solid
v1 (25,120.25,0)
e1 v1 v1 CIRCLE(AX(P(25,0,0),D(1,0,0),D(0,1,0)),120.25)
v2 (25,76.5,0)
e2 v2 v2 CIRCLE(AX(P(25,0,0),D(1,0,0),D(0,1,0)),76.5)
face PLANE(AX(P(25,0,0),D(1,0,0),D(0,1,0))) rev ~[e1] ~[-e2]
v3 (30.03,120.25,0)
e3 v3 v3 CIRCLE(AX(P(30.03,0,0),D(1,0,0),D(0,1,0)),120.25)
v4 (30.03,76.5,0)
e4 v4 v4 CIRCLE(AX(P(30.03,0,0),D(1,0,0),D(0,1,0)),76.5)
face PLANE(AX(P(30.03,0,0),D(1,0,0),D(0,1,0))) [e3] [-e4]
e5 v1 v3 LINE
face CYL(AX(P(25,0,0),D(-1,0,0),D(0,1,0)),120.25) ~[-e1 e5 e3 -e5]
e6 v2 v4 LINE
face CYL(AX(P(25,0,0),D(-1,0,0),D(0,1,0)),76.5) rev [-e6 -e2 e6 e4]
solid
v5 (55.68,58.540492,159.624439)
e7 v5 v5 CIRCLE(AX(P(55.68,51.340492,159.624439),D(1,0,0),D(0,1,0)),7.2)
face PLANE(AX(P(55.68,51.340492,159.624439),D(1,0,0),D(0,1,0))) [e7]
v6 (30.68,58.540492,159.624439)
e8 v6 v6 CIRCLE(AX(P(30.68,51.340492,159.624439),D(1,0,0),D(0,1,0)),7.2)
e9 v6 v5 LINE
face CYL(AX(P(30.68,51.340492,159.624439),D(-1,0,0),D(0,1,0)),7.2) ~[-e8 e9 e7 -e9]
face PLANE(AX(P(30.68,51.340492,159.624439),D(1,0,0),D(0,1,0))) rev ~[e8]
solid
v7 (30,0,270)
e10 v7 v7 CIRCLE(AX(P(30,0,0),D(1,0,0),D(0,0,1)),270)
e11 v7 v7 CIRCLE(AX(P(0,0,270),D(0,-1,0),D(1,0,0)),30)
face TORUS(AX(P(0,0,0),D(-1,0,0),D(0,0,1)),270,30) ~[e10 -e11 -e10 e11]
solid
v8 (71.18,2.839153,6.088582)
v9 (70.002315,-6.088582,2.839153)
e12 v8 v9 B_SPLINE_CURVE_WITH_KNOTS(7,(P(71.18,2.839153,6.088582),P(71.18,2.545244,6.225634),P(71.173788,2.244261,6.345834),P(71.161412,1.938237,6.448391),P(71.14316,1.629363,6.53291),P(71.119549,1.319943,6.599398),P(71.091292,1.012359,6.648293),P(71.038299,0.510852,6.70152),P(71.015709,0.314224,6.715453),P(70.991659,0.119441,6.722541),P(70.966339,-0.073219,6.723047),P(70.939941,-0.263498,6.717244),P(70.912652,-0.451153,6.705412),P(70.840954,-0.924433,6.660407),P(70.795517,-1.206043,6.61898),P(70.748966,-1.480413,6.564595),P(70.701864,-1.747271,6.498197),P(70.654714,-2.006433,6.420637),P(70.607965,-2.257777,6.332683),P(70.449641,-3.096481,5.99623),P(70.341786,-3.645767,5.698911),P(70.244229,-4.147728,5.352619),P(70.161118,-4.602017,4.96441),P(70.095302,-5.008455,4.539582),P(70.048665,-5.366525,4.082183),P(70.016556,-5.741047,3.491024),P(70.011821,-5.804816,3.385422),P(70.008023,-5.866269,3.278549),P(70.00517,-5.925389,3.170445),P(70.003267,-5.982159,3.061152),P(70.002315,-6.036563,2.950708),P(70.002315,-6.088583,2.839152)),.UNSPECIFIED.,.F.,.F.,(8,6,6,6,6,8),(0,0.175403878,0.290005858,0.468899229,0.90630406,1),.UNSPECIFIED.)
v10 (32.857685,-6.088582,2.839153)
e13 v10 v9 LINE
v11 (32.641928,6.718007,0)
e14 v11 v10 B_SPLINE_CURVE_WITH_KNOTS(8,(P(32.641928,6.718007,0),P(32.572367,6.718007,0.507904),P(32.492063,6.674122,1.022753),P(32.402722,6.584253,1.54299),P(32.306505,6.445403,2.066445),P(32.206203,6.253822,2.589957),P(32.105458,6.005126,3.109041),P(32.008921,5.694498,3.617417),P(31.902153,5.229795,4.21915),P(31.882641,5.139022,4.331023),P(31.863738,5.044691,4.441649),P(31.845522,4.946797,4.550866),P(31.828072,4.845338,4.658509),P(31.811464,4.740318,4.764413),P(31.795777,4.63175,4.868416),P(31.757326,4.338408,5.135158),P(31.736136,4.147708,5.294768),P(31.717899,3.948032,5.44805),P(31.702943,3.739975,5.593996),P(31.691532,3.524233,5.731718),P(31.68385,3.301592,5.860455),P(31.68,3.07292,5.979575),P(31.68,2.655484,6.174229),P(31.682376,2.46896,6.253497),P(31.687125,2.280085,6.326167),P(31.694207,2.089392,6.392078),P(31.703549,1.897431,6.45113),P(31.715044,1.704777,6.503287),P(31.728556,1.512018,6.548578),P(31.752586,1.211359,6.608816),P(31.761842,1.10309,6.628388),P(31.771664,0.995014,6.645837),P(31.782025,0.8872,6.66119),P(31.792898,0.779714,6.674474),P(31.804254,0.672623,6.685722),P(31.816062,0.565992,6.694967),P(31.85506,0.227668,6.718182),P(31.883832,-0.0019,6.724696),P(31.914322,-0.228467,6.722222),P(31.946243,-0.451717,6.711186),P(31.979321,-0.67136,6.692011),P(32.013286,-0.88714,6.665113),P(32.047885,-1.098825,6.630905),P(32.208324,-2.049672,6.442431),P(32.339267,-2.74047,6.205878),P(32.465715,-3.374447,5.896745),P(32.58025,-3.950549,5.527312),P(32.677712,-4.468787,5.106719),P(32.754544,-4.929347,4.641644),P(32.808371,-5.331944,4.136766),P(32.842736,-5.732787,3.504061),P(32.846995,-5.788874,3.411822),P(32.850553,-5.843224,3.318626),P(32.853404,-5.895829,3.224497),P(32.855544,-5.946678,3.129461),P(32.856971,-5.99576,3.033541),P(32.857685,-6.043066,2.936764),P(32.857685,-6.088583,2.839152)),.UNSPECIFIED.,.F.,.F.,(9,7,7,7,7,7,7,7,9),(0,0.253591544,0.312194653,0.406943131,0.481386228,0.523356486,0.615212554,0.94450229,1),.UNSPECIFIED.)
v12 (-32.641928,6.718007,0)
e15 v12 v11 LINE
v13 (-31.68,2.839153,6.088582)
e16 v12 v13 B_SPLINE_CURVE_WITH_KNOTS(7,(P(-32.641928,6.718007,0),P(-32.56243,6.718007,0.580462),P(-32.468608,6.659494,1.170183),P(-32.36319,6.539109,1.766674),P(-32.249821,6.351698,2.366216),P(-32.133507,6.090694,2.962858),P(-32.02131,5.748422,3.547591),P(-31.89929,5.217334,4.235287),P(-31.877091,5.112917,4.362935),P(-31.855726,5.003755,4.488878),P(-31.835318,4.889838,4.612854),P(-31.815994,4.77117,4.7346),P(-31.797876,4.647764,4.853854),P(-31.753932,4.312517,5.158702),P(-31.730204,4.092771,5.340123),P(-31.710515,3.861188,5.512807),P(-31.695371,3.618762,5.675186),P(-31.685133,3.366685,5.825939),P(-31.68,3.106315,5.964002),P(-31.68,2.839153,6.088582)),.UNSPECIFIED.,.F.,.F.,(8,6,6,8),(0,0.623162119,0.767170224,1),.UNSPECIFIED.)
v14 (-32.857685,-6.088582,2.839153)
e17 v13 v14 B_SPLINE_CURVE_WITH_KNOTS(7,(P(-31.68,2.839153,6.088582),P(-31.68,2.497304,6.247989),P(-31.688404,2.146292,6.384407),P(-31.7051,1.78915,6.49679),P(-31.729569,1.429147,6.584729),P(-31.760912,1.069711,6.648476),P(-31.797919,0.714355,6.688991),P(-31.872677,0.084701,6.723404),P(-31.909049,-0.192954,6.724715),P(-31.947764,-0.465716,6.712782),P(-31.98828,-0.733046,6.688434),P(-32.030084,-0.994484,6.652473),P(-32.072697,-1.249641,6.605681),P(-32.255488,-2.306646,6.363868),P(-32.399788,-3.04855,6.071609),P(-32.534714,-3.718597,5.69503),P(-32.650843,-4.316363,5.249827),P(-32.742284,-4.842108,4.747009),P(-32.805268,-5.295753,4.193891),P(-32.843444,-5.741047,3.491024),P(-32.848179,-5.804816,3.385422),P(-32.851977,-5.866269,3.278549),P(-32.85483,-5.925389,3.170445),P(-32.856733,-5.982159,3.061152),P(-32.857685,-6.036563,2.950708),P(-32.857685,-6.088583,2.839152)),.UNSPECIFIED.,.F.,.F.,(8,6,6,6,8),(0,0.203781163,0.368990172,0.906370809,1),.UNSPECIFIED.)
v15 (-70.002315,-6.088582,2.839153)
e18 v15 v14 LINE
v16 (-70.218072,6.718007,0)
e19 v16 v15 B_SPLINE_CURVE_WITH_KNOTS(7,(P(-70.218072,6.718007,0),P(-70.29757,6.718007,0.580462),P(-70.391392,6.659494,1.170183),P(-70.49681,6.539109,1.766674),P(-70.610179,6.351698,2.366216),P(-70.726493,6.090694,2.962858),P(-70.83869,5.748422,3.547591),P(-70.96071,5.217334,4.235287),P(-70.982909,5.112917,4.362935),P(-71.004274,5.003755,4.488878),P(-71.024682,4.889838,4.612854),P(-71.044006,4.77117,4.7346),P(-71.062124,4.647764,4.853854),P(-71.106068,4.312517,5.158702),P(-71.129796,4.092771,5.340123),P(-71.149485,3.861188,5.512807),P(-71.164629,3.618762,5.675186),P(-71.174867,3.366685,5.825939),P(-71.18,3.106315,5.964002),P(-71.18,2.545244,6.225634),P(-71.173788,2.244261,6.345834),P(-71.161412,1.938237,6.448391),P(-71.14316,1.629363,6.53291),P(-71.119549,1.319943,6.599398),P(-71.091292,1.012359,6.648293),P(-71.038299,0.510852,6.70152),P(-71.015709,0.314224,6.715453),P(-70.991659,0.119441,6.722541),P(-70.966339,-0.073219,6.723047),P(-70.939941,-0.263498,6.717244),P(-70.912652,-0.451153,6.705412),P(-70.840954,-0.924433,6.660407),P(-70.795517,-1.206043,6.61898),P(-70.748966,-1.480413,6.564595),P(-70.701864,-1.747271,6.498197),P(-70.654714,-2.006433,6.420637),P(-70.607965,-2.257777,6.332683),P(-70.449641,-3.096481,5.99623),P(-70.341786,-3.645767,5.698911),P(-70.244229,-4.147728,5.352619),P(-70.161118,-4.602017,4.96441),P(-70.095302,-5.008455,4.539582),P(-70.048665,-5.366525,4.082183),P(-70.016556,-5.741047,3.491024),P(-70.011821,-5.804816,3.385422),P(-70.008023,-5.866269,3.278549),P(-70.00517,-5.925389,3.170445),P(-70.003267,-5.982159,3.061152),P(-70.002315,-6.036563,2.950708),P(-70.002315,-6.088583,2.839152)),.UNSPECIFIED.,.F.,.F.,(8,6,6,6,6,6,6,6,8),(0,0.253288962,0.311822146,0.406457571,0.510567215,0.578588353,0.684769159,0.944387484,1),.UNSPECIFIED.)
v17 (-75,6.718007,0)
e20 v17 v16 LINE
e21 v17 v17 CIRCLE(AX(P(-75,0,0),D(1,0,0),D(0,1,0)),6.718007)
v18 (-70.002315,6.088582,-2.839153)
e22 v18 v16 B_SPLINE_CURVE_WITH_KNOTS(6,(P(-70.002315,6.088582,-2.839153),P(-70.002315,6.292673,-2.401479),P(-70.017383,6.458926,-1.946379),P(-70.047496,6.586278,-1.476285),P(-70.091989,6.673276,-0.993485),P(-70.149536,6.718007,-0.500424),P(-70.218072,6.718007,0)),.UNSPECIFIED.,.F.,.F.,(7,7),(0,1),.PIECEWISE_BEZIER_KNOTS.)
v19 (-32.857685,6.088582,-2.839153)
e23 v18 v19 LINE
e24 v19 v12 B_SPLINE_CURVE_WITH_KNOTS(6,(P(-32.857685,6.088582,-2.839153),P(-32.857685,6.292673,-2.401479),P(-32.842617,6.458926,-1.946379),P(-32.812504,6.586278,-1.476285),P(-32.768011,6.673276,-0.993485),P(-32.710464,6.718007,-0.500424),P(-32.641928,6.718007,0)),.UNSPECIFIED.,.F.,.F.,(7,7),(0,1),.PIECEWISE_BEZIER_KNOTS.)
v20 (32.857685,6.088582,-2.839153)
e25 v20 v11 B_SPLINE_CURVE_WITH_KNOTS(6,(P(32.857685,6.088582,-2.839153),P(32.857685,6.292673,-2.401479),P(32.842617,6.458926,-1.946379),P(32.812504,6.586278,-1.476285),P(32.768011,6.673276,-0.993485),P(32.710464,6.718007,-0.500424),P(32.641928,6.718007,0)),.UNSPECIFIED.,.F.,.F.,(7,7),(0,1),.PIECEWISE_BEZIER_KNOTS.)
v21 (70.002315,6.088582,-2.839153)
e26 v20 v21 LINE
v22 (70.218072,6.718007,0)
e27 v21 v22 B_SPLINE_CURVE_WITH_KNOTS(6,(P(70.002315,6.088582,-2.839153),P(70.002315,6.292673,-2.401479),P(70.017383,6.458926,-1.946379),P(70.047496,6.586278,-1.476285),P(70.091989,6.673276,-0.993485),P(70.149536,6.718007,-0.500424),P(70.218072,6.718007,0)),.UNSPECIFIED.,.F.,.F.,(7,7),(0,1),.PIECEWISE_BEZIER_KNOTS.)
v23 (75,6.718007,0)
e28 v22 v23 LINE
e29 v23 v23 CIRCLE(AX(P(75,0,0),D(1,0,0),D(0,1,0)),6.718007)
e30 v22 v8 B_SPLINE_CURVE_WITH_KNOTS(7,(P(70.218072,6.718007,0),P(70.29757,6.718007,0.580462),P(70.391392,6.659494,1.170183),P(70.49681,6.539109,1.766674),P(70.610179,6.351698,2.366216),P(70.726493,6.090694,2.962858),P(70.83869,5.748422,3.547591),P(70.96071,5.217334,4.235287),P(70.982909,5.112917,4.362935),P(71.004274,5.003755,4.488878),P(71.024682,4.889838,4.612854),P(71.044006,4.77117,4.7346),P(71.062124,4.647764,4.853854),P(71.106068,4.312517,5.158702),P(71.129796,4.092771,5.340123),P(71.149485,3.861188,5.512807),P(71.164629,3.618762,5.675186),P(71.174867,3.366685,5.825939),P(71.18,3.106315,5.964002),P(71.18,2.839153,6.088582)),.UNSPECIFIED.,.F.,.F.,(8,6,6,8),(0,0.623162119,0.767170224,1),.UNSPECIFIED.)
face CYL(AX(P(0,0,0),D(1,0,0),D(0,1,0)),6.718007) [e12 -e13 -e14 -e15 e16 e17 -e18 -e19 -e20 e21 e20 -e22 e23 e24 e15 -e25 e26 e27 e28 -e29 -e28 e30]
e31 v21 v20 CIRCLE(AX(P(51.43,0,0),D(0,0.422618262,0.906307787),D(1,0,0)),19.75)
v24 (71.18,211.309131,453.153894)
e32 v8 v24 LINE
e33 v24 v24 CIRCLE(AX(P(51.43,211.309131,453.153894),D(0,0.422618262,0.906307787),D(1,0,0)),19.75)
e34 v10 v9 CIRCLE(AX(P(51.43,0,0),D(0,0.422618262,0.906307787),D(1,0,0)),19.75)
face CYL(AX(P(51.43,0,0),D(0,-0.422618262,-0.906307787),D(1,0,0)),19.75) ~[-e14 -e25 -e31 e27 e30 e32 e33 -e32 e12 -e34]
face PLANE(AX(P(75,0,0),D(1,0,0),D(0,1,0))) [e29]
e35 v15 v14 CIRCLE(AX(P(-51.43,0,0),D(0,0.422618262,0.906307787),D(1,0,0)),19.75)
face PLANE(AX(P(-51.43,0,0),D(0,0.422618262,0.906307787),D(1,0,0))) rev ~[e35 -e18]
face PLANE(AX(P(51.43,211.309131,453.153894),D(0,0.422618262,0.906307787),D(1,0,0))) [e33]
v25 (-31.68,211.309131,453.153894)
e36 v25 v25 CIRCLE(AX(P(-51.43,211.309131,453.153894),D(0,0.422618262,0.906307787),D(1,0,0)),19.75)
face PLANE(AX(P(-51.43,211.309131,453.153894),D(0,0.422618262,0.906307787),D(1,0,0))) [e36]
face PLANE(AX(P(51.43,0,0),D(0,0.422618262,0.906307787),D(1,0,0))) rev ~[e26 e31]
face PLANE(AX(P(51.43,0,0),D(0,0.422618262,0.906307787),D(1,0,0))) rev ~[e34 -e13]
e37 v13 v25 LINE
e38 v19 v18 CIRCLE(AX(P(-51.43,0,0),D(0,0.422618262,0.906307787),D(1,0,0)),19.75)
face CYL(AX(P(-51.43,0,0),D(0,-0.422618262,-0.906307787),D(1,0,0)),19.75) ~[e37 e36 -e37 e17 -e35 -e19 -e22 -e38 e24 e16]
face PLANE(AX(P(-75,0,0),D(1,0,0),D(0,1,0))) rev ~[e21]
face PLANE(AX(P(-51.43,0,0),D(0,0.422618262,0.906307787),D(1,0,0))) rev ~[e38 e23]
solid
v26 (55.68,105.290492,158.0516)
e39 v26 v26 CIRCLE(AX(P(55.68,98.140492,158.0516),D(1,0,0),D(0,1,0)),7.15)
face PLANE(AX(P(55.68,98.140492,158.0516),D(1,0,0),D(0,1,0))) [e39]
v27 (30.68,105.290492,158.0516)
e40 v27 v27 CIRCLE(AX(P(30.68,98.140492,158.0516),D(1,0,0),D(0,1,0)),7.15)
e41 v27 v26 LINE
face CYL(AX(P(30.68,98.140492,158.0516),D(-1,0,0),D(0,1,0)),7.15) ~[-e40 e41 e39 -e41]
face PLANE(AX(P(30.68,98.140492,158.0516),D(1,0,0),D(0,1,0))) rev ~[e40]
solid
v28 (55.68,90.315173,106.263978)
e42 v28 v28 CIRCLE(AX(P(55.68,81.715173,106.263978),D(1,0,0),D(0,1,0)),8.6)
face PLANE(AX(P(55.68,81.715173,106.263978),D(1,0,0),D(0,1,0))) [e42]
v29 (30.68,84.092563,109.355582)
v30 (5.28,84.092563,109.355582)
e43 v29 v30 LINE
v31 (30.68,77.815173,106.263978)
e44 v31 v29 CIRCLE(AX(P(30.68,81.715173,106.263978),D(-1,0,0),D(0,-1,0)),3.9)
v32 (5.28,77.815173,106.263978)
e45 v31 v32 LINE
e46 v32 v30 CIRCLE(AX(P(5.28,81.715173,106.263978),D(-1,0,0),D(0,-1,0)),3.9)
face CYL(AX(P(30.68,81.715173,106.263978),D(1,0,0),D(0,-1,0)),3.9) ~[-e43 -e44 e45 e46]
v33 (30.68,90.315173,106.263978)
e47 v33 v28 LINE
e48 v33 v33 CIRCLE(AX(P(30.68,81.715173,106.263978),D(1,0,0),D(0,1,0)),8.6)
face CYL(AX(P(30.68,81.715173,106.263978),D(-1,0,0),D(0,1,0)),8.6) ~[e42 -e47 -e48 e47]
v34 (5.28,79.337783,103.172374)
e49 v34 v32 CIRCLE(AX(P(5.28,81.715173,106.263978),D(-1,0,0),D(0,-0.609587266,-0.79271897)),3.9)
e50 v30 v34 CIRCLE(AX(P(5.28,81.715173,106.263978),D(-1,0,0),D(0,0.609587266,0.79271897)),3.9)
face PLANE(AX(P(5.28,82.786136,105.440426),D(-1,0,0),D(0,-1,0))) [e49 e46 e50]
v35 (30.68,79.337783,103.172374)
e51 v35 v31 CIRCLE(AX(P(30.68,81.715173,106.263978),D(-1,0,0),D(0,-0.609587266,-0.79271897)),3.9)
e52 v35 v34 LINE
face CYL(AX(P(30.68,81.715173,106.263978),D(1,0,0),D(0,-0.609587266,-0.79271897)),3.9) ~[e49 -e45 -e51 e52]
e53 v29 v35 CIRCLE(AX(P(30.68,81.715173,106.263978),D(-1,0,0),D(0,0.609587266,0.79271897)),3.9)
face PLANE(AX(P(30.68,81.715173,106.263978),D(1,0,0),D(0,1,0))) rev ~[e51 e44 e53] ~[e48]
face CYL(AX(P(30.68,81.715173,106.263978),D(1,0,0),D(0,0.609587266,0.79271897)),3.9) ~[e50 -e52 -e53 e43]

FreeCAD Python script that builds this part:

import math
import FreeCAD as App
import Part
import Sketcher

V = App.Vector

doc = App.newDocument("Part")
body = doc.addObject("PartDesign::Body", "Body")

sketch1 = body.newObject("Sketcher::SketchObject", "Sketch")
sketch1.AttachmentSupport = (doc.getObject("XZ_Plane"), [""])
sketch1.MapMode = "FlatFace"
sketch1.addGeometry(Part.Circle(V(0, 270, 0), V(0, 0, 1), 30), False)
sketch1.addConstraint(Sketcher.Constraint("PointOnObject", 0, 3, -2))
sketch1.addConstraint(Sketcher.Constraint("Diameter", 0, 60.0))
sketch1.addConstraint(Sketcher.Constraint("DistanceY", -1, 1, 0, 3, 270.0))
revolution = body.newObject("PartDesign::Revolution", "Revolution")
revolution.Profile = sketch1
revolution.ReferenceAxis = (sketch1, ["H_Axis"])
revolution.Angle = 360
body2 = doc.addObject("PartDesign::Body", "Body001")

sketch2 = body2.newObject("Sketcher::SketchObject", "Sketch001")
sketch2.AttachmentSupport = (doc.getObject("YZ_Plane001"), [""])
sketch2.MapMode = "FlatFace"
sketch2.addGeometry(Part.Circle(V(0, 0, 0), V(0, 0, 1), 6.718007), False)
sketch2.addConstraint(Sketcher.Constraint("Coincident", 0, 3, -1, 1))
sketch2.addConstraint(Sketcher.Constraint("Diameter", 0, 13.436015))
pad1 = body2.newObject("PartDesign::Pad", "Pad")
pad1.Profile = sketch2
pad1.Length = 150
pad1.Midplane = True

sketch3 = body2.newObject("Sketcher::SketchObject", "Sketch002")
sketch3.Placement = App.Placement(V(0, 0, 0), App.Rotation(V(1, 0, 0), V(0, 0.906307787, -0.422618262), V(0, 0.422618262, 0.906307787), "ZXY"))
sketch3.addGeometry(Part.Circle(V(-51.43, 0, 0), V(0, 0, 1), 19.75), False)
sketch3.addGeometry(Part.Circle(V(51.43, 0, 0), V(0, 0, 1), 19.75), False)
sketch3.addConstraint(Sketcher.Constraint("Equal", 0, 1))
sketch3.addConstraint(Sketcher.Constraint("Symmetric", 0, 3, 1, 3, -1, 1))
sketch3.addConstraint(Sketcher.Constraint("PointOnObject", 0, 3, -1))
sketch3.addConstraint(Sketcher.Constraint("Diameter", 0, 39.5))
sketch3.addConstraint(Sketcher.Constraint("DistanceX", 0, 3, -1, 1, 51.43))
pad2 = body2.newObject("PartDesign::Pad", "Pad001")
pad2.Profile = sketch3
pad2.Length = 500
body3 = doc.addObject("PartDesign::Body", "Body002")

sketch4 = body3.newObject("Sketcher::SketchObject", "Sketch003")
sketch4.AttachmentSupport = (doc.getObject("YZ_Plane002"), [""])
sketch4.MapMode = "FlatFace"
sketch4.AttachmentOffset = App.Placement(V(0, 0, 25), App.Rotation())
sketch4.addGeometry(Part.Circle(V(0, 0, 0), V(0, 0, 1), 120.25), False)
sketch4.addGeometry(Part.Circle(V(0, 0, 0), V(0, 0, 1), 76.5), False)
sketch4.addConstraint(Sketcher.Constraint("Coincident", 0, 3, -1, 1))
sketch4.addConstraint(Sketcher.Constraint("Coincident", 1, 3, -1, 1))
sketch4.addConstraint(Sketcher.Constraint("Diameter", 1, 153.0))
sketch4.addConstraint(Sketcher.Constraint("Diameter", 0, 240.5))
pad3 = body3.newObject("PartDesign::Pad", "Pad002")
pad3.Profile = sketch4
pad3.Length = 5.03
body4 = doc.addObject("PartDesign::Body", "Body003")

sketch5 = body4.newObject("Sketcher::SketchObject", "Sketch004")
sketch5.AttachmentSupport = (doc.getObject("YZ_Plane003"), [""])
sketch5.MapMode = "FlatFace"
sketch5.AttachmentOffset = App.Placement(V(0, 0, 30.68), App.Rotation())
sketch5.addGeometry(Part.Circle(V(98.140492, 158.0516, 0), V(0, 0, 1), 7.15), False)
sketch5.addConstraint(Sketcher.Constraint("Diameter", 0, 14.3))
sketch5.addConstraint(Sketcher.Constraint("DistanceY", -1, 1, 0, 3, 158.0516))
sketch5.addConstraint(Sketcher.Constraint("DistanceX", -1, 1, 0, 3, 98.140492))
pad4 = body4.newObject("PartDesign::Pad", "Pad003")
pad4.Profile = sketch5
pad4.Length = 25
body5 = doc.addObject("PartDesign::Body", "Body004")

sketch6 = body5.newObject("Sketcher::SketchObject", "Sketch005")
sketch6.AttachmentSupport = (doc.getObject("YZ_Plane004"), [""])
sketch6.MapMode = "FlatFace"
sketch6.AttachmentOffset = App.Placement(V(0, 0, 30.68), App.Rotation())
sketch6.addGeometry(Part.Circle(V(81.715173, 106.263978, 0), V(0, 0, 1), 8.6), False)
sketch6.addConstraint(Sketcher.Constraint("Diameter", 0, 17.2))
sketch6.addConstraint(Sketcher.Constraint("DistanceX", -1, 1, 0, 3, 81.715173))
sketch6.addConstraint(Sketcher.Constraint("DistanceY", -1, 1, 0, 3, 106.263978))
pad5 = body5.newObject("PartDesign::Pad", "Pad004")
pad5.Profile = sketch6
pad5.Length = 25

sketch7 = body5.newObject("Sketcher::SketchObject", "Sketch006")
sketch7.AttachmentSupport = (doc.getObject("YZ_Plane004"), [""])
sketch7.MapMode = "FlatFace"
sketch7.AttachmentOffset = App.Placement(V(0, 0, 30.68), App.Rotation())
sketch7.addGeometry(Part.ArcOfCircle(Part.Circle(V(81.715173, 106.263978, 0), V(0, 0, 1), 3.9), math.radians(-127.559666), math.radians(52.440334)), False)
sketch7.addGeometry(Part.ArcOfCircle(Part.Circle(V(81.715173, 106.263978, 0), V(0, 0, 1), 3.9), math.radians(180), math.radians(232.440334)), False)
sketch7.addGeometry(Part.ArcOfCircle(Part.Circle(V(81.715173, 106.263978, 0), V(0, 0, 1), 3.9), math.radians(52.440334), math.radians(180)), False)
sketch7.addConstraint(Sketcher.Constraint("Tangent", 0, 1, 1, 2))
sketch7.addConstraint(Sketcher.Constraint("Tangent", 1, 1, 2, 2))
sketch7.addConstraint(Sketcher.Constraint("Tangent", 2, 1, 0, 2))
sketch7.addConstraint(Sketcher.Constraint("Horizontal", 2, 3, 1, 1))
sketch7.addConstraint(Sketcher.Constraint("Radius", 0, 3.9))
sketch7.addConstraint(Sketcher.Constraint("DistanceY", -1, 1, 2, 1, 109.355582))
sketch7.addConstraint(Sketcher.Constraint("DistanceX", 0, 1, 0, 3, 2.37739))
sketch7.addConstraint(Sketcher.Constraint("DistanceX", 0, 3, 2, 1, 2.37739))
sketch7.addConstraint(Sketcher.Constraint("DistanceX", -1, 1, 0, 3, 81.715173))
pad6 = body5.newObject("PartDesign::Pad", "Pad005")
pad6.Profile = sketch7
pad6.Length = 25.4
pad6.Reversed = True
body6 = doc.addObject("PartDesign::Body", "Body005")

sketch8 = body6.newObject("Sketcher::SketchObject", "Sketch007")
sketch8.AttachmentSupport = (doc.getObject("YZ_Plane005"), [""])
sketch8.MapMode = "FlatFace"
sketch8.AttachmentOffset = App.Placement(V(0, 0, 30.68), App.Rotation())
sketch8.addGeometry(Part.Circle(V(51.340492, 159.624439, 0), V(0, 0, 1), 7.2), False)
sketch8.addConstraint(Sketcher.Constraint("Diameter", 0, 14.4))
sketch8.addConstraint(Sketcher.Constraint("DistanceY", -1, 1, 0, 3, 159.624439))
sketch8.addConstraint(Sketcher.Constraint("DistanceX", -1, 1, 0, 3, 51.340492))
pad7 = body6.newObject("PartDesign::Pad", "Pad006")
pad7.Profile = sketch8
pad7.Length = 25

doc.recompute()
